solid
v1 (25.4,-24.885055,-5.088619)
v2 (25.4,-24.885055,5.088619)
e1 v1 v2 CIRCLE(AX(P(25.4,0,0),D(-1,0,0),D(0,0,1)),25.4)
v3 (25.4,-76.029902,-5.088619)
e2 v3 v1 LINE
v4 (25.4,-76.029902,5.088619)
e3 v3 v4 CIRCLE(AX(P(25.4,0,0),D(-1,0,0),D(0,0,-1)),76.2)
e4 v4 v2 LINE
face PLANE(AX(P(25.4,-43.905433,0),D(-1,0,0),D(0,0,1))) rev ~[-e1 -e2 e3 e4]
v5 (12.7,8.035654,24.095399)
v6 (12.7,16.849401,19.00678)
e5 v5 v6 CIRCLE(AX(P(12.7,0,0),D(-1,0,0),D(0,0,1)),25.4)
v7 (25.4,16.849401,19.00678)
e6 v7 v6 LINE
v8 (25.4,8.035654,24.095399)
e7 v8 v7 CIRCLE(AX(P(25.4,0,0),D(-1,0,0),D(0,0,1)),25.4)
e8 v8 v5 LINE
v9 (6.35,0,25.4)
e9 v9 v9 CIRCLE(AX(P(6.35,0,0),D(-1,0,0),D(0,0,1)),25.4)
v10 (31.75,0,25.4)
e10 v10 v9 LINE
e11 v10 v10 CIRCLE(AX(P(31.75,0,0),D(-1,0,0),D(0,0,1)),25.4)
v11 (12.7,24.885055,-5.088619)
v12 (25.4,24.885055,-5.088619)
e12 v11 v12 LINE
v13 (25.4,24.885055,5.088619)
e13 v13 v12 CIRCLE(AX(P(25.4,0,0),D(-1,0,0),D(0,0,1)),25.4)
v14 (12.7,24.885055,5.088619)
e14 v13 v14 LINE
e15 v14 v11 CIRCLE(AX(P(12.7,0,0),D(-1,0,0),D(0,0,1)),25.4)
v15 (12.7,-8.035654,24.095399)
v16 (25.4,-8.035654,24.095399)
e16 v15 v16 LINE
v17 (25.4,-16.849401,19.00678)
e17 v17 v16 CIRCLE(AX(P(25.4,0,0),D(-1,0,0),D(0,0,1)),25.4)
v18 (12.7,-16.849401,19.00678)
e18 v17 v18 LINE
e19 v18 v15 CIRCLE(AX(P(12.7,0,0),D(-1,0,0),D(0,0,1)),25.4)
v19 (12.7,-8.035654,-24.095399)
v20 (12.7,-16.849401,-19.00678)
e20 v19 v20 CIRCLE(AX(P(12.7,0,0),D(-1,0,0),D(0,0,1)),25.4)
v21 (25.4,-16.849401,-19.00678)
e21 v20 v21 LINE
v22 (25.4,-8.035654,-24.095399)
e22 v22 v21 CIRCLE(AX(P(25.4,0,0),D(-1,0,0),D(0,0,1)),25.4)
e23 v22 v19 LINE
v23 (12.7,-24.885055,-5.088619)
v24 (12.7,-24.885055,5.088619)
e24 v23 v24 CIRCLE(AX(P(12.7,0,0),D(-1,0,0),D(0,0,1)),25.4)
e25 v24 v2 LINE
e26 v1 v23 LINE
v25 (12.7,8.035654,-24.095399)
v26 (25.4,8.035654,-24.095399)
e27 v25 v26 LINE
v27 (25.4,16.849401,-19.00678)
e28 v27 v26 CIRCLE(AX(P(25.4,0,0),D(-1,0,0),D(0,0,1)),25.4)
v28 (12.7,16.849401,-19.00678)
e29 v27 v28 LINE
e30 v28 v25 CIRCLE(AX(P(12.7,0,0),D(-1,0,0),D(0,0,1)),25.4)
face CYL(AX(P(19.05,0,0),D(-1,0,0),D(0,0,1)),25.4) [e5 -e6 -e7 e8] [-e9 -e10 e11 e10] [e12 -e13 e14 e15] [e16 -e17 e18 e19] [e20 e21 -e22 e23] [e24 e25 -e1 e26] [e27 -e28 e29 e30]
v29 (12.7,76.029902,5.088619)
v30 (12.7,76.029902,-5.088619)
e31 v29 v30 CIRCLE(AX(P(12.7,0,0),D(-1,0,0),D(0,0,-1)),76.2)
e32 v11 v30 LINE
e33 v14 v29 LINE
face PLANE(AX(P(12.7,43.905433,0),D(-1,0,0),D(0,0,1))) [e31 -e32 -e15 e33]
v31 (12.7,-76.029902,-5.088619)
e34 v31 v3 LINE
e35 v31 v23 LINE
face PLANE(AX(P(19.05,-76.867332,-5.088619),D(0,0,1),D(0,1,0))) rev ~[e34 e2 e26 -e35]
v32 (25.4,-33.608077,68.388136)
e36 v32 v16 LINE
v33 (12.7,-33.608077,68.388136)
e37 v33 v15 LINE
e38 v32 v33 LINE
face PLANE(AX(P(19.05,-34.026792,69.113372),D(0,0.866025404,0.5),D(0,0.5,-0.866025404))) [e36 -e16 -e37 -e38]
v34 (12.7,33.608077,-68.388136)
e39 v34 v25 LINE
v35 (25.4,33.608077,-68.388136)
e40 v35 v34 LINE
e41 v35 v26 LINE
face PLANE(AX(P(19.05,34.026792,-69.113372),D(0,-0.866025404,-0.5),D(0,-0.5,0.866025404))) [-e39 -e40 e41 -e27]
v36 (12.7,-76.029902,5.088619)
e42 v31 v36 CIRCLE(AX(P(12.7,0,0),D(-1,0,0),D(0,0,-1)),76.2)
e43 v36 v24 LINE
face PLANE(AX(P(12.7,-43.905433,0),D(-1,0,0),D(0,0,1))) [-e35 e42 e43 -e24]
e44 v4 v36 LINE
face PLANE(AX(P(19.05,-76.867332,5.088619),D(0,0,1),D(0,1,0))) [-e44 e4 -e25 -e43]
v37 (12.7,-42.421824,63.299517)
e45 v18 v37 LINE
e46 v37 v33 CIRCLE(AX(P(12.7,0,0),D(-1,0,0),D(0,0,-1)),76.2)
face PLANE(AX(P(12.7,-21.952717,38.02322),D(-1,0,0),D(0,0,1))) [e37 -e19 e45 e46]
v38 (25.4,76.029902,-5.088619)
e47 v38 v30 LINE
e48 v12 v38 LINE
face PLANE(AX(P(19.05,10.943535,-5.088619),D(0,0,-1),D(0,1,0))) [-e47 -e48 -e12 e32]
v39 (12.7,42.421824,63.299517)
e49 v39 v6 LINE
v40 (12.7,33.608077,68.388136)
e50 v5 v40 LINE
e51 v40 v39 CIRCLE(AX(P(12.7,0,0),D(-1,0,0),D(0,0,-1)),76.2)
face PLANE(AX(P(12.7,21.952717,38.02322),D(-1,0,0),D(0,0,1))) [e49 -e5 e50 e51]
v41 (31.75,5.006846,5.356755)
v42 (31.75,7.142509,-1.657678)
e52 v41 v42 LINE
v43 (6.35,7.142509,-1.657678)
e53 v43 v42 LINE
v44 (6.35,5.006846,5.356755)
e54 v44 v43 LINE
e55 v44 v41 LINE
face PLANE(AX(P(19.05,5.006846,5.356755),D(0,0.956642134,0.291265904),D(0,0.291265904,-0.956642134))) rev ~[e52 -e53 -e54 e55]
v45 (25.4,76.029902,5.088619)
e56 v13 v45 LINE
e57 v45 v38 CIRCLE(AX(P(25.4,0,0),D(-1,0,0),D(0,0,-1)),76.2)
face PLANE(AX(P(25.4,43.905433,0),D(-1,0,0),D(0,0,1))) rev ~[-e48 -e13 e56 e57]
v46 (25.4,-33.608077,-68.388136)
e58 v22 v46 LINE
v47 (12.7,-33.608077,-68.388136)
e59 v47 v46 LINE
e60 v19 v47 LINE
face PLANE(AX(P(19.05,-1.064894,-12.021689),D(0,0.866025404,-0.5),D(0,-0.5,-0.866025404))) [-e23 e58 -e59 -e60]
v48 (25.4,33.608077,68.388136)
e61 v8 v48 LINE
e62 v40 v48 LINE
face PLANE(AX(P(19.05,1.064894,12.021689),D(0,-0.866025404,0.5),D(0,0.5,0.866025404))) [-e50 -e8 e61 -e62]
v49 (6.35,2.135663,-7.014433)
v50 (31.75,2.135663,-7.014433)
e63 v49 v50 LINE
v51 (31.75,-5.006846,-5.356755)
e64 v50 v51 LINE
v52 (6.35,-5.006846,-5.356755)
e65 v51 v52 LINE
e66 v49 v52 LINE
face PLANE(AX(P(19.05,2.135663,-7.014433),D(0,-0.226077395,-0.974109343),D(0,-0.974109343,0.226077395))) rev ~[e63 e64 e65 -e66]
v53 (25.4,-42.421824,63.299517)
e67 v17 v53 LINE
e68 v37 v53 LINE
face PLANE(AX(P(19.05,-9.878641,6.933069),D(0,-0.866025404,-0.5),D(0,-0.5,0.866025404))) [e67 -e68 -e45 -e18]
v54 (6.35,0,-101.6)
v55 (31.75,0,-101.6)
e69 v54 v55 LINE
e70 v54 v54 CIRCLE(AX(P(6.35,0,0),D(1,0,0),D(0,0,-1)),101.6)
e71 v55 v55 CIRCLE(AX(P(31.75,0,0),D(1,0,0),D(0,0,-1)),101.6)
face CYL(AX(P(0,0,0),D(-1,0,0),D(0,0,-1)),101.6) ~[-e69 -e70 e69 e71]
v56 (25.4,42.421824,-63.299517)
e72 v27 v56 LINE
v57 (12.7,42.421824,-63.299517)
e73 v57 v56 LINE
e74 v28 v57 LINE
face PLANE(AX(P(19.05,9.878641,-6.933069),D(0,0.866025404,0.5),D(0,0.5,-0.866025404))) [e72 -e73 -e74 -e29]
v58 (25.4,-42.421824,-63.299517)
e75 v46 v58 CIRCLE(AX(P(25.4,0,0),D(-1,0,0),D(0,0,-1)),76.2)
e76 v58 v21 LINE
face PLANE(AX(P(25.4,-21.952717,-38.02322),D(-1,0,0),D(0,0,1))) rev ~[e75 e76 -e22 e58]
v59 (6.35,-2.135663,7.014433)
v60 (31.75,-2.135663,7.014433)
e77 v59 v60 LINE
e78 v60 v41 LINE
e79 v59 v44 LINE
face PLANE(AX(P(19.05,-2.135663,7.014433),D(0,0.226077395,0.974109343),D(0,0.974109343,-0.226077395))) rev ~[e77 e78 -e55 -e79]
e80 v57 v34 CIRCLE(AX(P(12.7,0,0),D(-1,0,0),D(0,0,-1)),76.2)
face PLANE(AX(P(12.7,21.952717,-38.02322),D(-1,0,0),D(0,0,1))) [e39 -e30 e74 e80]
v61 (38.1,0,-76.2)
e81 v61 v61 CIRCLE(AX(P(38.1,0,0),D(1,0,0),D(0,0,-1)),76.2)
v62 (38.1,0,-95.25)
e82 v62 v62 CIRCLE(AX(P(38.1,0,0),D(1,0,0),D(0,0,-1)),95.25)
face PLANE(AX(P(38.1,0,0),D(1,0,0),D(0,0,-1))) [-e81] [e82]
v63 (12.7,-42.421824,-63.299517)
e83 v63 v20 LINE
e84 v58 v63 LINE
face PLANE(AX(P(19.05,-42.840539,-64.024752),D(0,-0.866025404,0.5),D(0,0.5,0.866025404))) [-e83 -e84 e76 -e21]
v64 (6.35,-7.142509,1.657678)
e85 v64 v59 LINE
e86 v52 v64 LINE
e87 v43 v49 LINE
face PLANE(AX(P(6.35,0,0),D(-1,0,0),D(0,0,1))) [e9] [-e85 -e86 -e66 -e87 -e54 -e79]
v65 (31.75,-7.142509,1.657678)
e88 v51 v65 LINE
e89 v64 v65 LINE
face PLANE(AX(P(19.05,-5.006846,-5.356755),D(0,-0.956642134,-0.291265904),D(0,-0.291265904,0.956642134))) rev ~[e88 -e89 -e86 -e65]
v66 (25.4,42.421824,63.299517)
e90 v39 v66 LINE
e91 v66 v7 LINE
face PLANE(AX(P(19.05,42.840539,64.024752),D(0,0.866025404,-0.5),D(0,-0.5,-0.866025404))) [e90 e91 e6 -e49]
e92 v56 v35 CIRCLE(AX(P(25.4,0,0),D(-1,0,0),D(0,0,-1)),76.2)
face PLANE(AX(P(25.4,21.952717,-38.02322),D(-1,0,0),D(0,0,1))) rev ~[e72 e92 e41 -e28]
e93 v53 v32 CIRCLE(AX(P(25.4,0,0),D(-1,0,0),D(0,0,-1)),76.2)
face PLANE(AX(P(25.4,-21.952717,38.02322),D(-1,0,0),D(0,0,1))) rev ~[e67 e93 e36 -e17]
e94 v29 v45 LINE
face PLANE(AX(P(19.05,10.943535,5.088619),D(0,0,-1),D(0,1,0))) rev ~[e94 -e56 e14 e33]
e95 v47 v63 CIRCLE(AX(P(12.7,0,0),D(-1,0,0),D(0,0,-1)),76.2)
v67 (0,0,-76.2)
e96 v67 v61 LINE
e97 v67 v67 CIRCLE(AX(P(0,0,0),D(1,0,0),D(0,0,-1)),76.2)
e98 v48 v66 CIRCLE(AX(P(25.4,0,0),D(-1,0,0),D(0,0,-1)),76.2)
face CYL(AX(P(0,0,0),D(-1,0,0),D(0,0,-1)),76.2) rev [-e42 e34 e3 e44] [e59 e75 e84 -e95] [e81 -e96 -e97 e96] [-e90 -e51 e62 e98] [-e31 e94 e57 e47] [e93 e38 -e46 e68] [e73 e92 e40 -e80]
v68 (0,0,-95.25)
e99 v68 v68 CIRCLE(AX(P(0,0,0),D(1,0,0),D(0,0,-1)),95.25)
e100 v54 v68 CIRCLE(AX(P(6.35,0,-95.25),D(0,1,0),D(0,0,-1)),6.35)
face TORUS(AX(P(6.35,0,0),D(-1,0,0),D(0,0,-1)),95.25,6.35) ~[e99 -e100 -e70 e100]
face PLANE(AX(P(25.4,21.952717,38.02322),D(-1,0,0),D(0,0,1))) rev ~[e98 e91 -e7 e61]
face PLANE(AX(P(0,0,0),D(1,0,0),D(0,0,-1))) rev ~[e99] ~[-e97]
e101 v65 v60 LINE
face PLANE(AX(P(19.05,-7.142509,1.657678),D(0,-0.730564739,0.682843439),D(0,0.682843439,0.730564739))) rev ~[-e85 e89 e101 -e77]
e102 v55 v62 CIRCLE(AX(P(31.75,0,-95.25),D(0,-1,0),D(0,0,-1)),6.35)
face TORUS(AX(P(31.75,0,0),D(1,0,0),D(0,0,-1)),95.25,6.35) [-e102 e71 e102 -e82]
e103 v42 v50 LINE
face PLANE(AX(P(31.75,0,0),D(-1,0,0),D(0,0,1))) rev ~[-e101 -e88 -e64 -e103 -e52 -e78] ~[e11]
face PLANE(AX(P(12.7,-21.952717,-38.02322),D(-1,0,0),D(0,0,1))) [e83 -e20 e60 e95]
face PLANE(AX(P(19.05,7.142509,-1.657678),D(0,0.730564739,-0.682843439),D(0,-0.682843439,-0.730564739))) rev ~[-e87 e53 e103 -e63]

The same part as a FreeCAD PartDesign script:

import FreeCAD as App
import Part
import Sketcher
Q = App.Units.Quantity


def edges_at(feature, points):
    """Names of the edges that pass closest to the given points."""
    edges = feature.Shape.Edges
    near = lambda p: min(range(len(edges)), key=lambda i: edges[i].distToShape(Part.Vertex(*p))[0])
    return sorted({f"Edge{near(p) + 1}" for p in points})

doc = App.newDocument("Part")
params = doc.addObject("Spreadsheet::Sheet", "Params")
for row, (alias, value) in enumerate([
    ("sketch1_diameter", "8 in"),
    ("sketch1_diameter2", "6 in"),
    ("pad1_length", "1.5 in"),
    ("fillet_radius", "0.25 in"),
    ("sketch2_diameter", "2 in"),
    ("pad2_length", "0.5 in"),
    ("pad2_length2", "0.5 in"),
    ("pad3_length", "0.25 in"),
    ("pad3_length2", "0.25 in"),
], start=1):
    params.set(f"A{row}", alias)
    params.set(f"B{row}", "=" + value)
    params.setAlias(f"B{row}", alias)

body = doc.addObject("PartDesign::Body", "Body")

# Sketch on YZ plane
sketch1 = doc.addObject("Sketcher::SketchObject", "Sketch")
body.addObject(sketch1)
sketch1.AttachmentSupport = (doc.YZ_Plane, [""])
sketch1.MapMode = "FlatFace"
sketch1.addGeometry(Part.Circle(App.Vector(0, 0, 0), App.Vector(0, 0, 1), 102), False)
sketch1.addGeometry(Part.Circle(App.Vector(0, 0, 0), App.Vector(0, 0, 1), 76), False)
sketch1.addConstraint(Sketcher.Constraint("Coincident", 0, 3, -1, 1))
sketch1.addConstraint(Sketcher.Constraint("Coincident", 1, 3, -1, 1))
sketch1.addConstraint(Sketcher.Constraint("Diameter", 0, Q("8 in")))
sketch1.addConstraint(Sketcher.Constraint("Diameter", 1, Q("6 in")))
sketch1.setExpression("Constraints[2]", "Params.sketch1_diameter")
sketch1.setExpression("Constraints[3]", "Params.sketch1_diameter2")
pad1 = doc.addObject("PartDesign::Pad", "Pad")
body.addObject(pad1)
pad1.Profile = sketch1
pad1.setExpression("Length", "Params.pad1_length")
doc.recompute()

fillet = doc.addObject("PartDesign::Fillet", "Fillet")
body.addObject(fillet)
fillet.Base = (pad1, edges_at(pad1, [(0, 0, 101.6), (38.1, 0, 101.6)]))
fillet.setExpression("Radius", "Params.fillet_radius")
body2 = doc.addObject("PartDesign::Body", "Body001")

# Sketch on YZ plane
sketch2 = doc.addObject("Sketcher::SketchObject", "Sketch001")
body2.addObject(sketch2)
sketch2.AttachmentSupport = (doc.getObject("YZ_Plane001"), [""])
sketch2.MapMode = "FlatFace"
sketch2.AttachmentOffset = App.Placement(App.Vector(0, 0, 0.75 * 25.4), App.Rotation())
sketch2.addGeometry(Part.Circle(App.Vector(0, 0, 0), App.Vector(0, 0, 1), 25), False)
sketch2.addGeometry(Part.LineSegment(App.Vector(-7, 2, 0), App.Vector(-5, -5, 0)), False)
sketch2.addGeometry(Part.LineSegment(App.Vector(-5, -5, 0), App.Vector(2, -7, 0)), False)
sketch2.addGeometry(Part.LineSegment(App.Vector(2, -7, 0), App.Vector(7, -2, 0)), False)
sketch2.addGeometry(Part.LineSegment(App.Vector(7, -2, 0), App.Vector(5, 5, 0)), False)
sketch2.addGeometry(Part.LineSegment(App.Vector(5, 5, 0), App.Vector(-2, 7, 0)), False)
sketch2.addGeometry(Part.LineSegment(App.Vector(-2, 7, 0), App.Vector(-7, 2, 0)), False)
sketch2.addConstraint(Sketcher.Constraint("Coincident", 1, 2, 2, 1))
sketch2.addConstraint(Sketcher.Constraint("Coincident", 2, 2, 3, 1))
sketch2.addConstraint(Sketcher.Constraint("Coincident", 3, 2, 4, 1))
sketch2.addConstraint(Sketcher.Constraint("Coincident", 4, 2, 5, 1))
sketch2.addConstraint(Sketcher.Constraint("Coincident", 5, 2, 6, 1))
sketch2.addConstraint(Sketcher.Constraint("Coincident", 6, 2, 1, 1))
sketch2.addConstraint(Sketcher.Constraint("Coincident", 0, 3, -1, 1))
sketch2.addConstraint(Sketcher.Constraint("Symmetric", 1, 2, 4, 2, -1, 1))
sketch2.addConstraint(Sketcher.Constraint("Symmetric", 2, 2, 5, 2, -1, 1))
sketch2.addConstraint(Sketcher.Constraint("Symmetric", 3, 2, 6, 2, -1, 1))
sketch2.addConstraint(Sketcher.Constraint("Equal", 1, 2))
sketch2.addConstraint(Sketcher.Constraint("Equal", 2, 3))
sketch2.addConstraint(Sketcher.Constraint("Diameter", 0, Q("2 in")))
sketch2.addConstraint(Sketcher.Constraint("Distance", 1, 7.332348))
sketch2.addConstraint(Sketcher.Constraint("DistanceX", -1, 1, 3, 2, 7.142509))
sketch2.addConstraint(Sketcher.Constraint("DistanceY", 3, 2, -1, 1, 1.657678))
sketch2.addConstraint(Sketcher.Constraint("DistanceX", 1, 2, 2, 2, 7.142509))
sketch2.setExpression("Constraints[12]", "Params.sketch2_diameter")
pad2 = doc.addObject("PartDesign::Pad", "Pad001")
body2.addObject(pad2)
pad2.Profile = sketch2
pad2.Type = "TwoLengths"
pad2.setExpression("Length", "Params.pad2_length")
pad2.setExpression("Length2", "Params.pad2_length2")
pad2.Reversed = True
body.AllowCompound = True
doc.recompute()

boolean = doc.addObject("PartDesign::Boolean", "Boolean")
body.addObject(boolean)
boolean.Type = "Fuse"
boolean.addObjects([body2])

# Sketch on YZ plane
sketch3 = doc.addObject("Sketcher::SketchObject", "Sketch002")
body.addObject(sketch3)
sketch3.AttachmentSupport = (doc.YZ_Plane, [""])
sketch3.MapMode = "FlatFace"
sketch3.AttachmentOffset = App.Placement(App.Vector(0, 0, 0.75 * 25.4), App.Rotation())
sketch3.addGeometry(Part.LineSegment(App.Vector(10, 7, 0), App.Vector(1, 12, 0)), False)
sketch3.addGeometry(Part.LineSegment(App.Vector(1, 12, 0), App.Vector(34, 69, 0)), False)
sketch3.addGeometry(Part.LineSegment(App.Vector(34, 69, 0), App.Vector(43, 64, 0)), False)
sketch3.addGeometry(Part.LineSegment(App.Vector(43, 64, 0), App.Vector(10, 7, 0)), False)
sketch3.addGeometry(Part.LineSegment(App.Vector(77, -5, 0), App.Vector(11, -5, 0)), False)
sketch3.addGeometry(Part.LineSegment(App.Vector(11, -5, 0), App.Vector(11, 5, 0)), False)
sketch3.addGeometry(Part.LineSegment(App.Vector(11, 5, 0), App.Vector(77, 5, 0)), False)
sketch3.addGeometry(Part.LineSegment(App.Vector(77, 5, 0), App.Vector(77, -5, 0)), False)
sketch3.addGeometry(Part.LineSegment(App.Vector(-1, 12, 0), App.Vector(-10, 7, 0)), False)
sketch3.addGeometry(Part.LineSegment(App.Vector(-10, 7, 0), App.Vector(-43, 64, 0)), False)
sketch3.addGeometry(Part.LineSegment(App.Vector(-43, 64, 0), App.Vector(-34, 69, 0)), False)
sketch3.addGeometry(Part.LineSegment(App.Vector(-34, 69, 0), App.Vector(-1, 12, 0)), False)
sketch3.addGeometry(Part.LineSegment(App.Vector(-11, -5, 0), App.Vector(-77, -5, 0)), False)
sketch3.addGeometry(Part.LineSegment(App.Vector(-77, -5, 0), App.Vector(-77, 5, 0)), False)
sketch3.addGeometry(Part.LineSegment(App.Vector(-77, 5, 0), App.Vector(-11, 5, 0)), False)
sketch3.addGeometry(Part.LineSegment(App.Vector(-11, 5, 0), App.Vector(-11, -5, 0)), False)
sketch3.addGeometry(Part.LineSegment(App.Vector(-10, -7, 0), App.Vector(-1, -12, 0)), False)
sketch3.addGeometry(Part.LineSegment(App.Vector(-1, -12, 0), App.Vector(-34, -69, 0)), False)
sketch3.addGeometry(Part.LineSegment(App.Vector(-34, -69, 0), App.Vector(-43, -64, 0)), False)
sketch3.addGeometry(Part.LineSegment(App.Vector(-43, -64, 0), App.Vector(-10, -7, 0)), False)
sketch3.addGeometry(Part.LineSegment(App.Vector(1, -12, 0), App.Vector(10, -7, 0)), False)
sketch3.addGeometry(Part.LineSegment(App.Vector(10, -7, 0), App.Vector(43, -64, 0)), False)
sketch3.addGeometry(Part.LineSegment(App.Vector(43, -64, 0), App.Vector(34, -69, 0)), False)
sketch3.addGeometry(Part.LineSegment(App.Vector(34, -69, 0), App.Vector(1, -12, 0)), False)
sketch3.addConstraint(Sketcher.Constraint("Coincident", 0, 2, 1, 1))
sketch3.addConstraint(Sketcher.Constraint("Coincident", 1, 2, 2, 1))
sketch3.addConstraint(Sketcher.Constraint("Coincident", 2, 2, 3, 1))
sketch3.addConstraint(Sketcher.Constraint("Coincident", 3, 2, 0, 1))
sketch3.addConstraint(Sketcher.Constraint("Coincident", 4, 2, 5, 1))
sketch3.addConstraint(Sketcher.Constraint("Coincident", 5, 2, 6, 1))
sketch3.addConstraint(Sketcher.Constraint("Coincident", 6, 2, 7, 1))
sketch3.addConstraint(Sketcher.Constraint("Coincident", 7, 2, 4, 1))
sketch3.addConstraint(Sketcher.Constraint("Coincident", 8, 2, 9, 1))
sketch3.addConstraint(Sketcher.Constraint("Coincident", 9, 2, 10, 1))
sketch3.addConstraint(Sketcher.Constraint("Coincident", 10, 2, 11, 1))
sketch3.addConstraint(Sketcher.Constraint("Coincident", 11, 2, 8, 1))
sketch3.addConstraint(Sketcher.Constraint("Coincident", 12, 2, 13, 1))
sketch3.addConstraint(Sketcher.Constraint("Coincident", 13, 2, 14, 1))
sketch3.addConstraint(Sketcher.Constraint("Coincident", 14, 2, 15, 1))
sketch3.addConstraint(Sketcher.Constraint("Coincident", 15, 2, 12, 1))
sketch3.addConstraint(Sketcher.Constraint("Coincident", 16, 2, 17, 1))
sketch3.addConstraint(Sketcher.Constraint("Coincident", 17, 2, 18, 1))
sketch3.addConstraint(Sketcher.Constraint("Coincident", 18, 2, 19, 1))
sketch3.addConstraint(Sketcher.Constraint("Coincident", 19, 2, 16, 1))
sketch3.addConstraint(Sketcher.Constraint("Coincident", 20, 2, 21, 1))
sketch3.addConstraint(Sketcher.Constraint("Coincident", 21, 2, 22, 1))
sketch3.addConstraint(Sketcher.Constraint("Coincident", 22, 2, 23, 1))
sketch3.addConstraint(Sketcher.Constraint("Coincident", 23, 2, 20, 1))
sketch3.addConstraint(Sketcher.Constraint("Horizontal", 4))
sketch3.addConstraint(Sketcher.Constraint("Vertical", 5))
sketch3.addConstraint(Sketcher.Constraint("Horizontal", 6))
sketch3.addConstraint(Sketcher.Constraint("Vertical", 7))
sketch3.addConstraint(Sketcher.Constraint("Horizontal", 12))
sketch3.addConstraint(Sketcher.Constraint("Vertical", 13))
sketch3.addConstraint(Sketcher.Constraint("Horizontal", 14))
sketch3.addConstraint(Sketcher.Constraint("Vertical", 15))
sketch3.addConstraint(Sketcher.Constraint("Symmetric", 6, 2, 12, 2, -1, 1))
sketch3.addConstraint(Sketcher.Constraint("Symmetric", 4, 2, 14, 2, -1, 1))
sketch3.addConstraint(Sketcher.Constraint("Symmetric", 0, 2, 16, 2, -1, 1))
sketch3.addConstraint(Sketcher.Constraint("Symmetric", 1, 2, 17, 2, -1, 1))
sketch3.addConstraint(Sketcher.Constraint("Symmetric", 2, 2, 18, 2, -1, 1))
sketch3.addConstraint(Sketcher.Constraint("Symmetric", 3, 2, 19, 2, -1, 1))
sketch3.addConstraint(Sketcher.Constraint("Symmetric", 8, 2, 20, 2, -1, 1))
sketch3.addConstraint(Sketcher.Constraint("Symmetric", 9, 2, 21, 2, -1, 1))
sketch3.addConstraint(Sketcher.Constraint("Symmetric", 10, 2, 22, 2, -1, 1))
sketch3.addConstraint(Sketcher.Constraint("Symmetric", 11, 2, 23, 2, -1, 1))
sketch3.addConstraint(Sketcher.Constraint("Symmetric", 3, 2, 8, 2, -2))
sketch3.addConstraint(Sketcher.Constraint("Symmetric", 2, 2, 9, 2, -2))
sketch3.addConstraint(Sketcher.Constraint("Symmetric", 1, 2, 10, 2, -2))
sketch3.addConstraint(Sketcher.Constraint("Symmetric", 0, 2, 11, 2, -2))
sketch3.addConstraint(Sketcher.Constraint("Perpendicular", 0, 1))
sketch3.addConstraint(Sketcher.Constraint("Perpendicular", 1, 2))
sketch3.addConstraint(Sketcher.Constraint("Perpendicular", 2, 3))
sketch3.addConstraint(Sketcher.Constraint("Horizontal", 7, 2, 12, 2))
sketch3.addConstraint(Sketcher.Constraint("Angle", 0, Q("150 deg")))
sketch3.addConstraint(Sketcher.Constraint("DistanceY", 5, 1, 5, 2, 10.177239))
sketch3.addConstraint(Sketcher.Constraint("DistanceX", 0, 2, 1, 2, 32.961899))
sketch3.addConstraint(Sketcher.Constraint("Distance", 0, 10.177239))
sketch3.addConstraint(Sketcher.Constraint("DistanceX", 4, 2, 4, 1, 65.923797))
sketch3.addConstraint(Sketcher.Constraint("DistanceY", -1, 1, 0, 2, 12.021689))
sketch3.addConstraint(Sketcher.Constraint("DistanceX", -1, 1, 2, 2, 42.840539))
sketch3.addConstraint(Sketcher.Constraint("DistanceX", -1, 1, 6, 2, 76.867332))
pad3 = doc.addObject("PartDesign::Pad", "Pad002")
body.addObject(pad3)
pad3.Profile = sketch3
pad3.Type = "TwoLengths"
pad3.setExpression("Length", "Params.pad3_length")
pad3.setExpression("Length2", "Params.pad3_length2")
pad3.Reversed = True

doc.recompute()
